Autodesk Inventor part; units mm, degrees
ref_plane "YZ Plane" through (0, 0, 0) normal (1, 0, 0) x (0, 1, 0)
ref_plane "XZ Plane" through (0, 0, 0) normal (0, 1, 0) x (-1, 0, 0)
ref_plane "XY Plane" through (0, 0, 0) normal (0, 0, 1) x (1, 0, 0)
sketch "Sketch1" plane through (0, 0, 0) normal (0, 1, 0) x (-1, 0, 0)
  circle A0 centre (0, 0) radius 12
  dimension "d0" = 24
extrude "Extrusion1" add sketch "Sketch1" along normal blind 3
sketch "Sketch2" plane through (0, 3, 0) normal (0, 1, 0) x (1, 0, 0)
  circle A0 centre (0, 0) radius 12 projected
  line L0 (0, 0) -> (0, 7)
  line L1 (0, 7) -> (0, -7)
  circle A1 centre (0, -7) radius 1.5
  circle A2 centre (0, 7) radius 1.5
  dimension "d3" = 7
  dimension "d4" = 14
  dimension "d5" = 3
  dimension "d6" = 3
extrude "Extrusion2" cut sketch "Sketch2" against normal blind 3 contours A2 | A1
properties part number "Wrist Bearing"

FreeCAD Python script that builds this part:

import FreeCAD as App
import Part
import Sketcher
from FreeCAD import Vector
Q = App.Units.Quantity

doc = App.newDocument("Part")
body = doc.addObject("PartDesign::Body", "Body")

# Sketch on XZ plane
sketch1 = body.newObject("Sketcher::SketchObject", "Sketch")
sketch1.AttachmentSupport = (doc.getObject("XZ_Plane"), [""])
sketch1.MapMode = "FlatFace"
sketch1.addGeometry(Part.Circle(Vector(0, 0, 0), Vector(0, 0, 1), 12), False)
sketch1.addConstraint([
    Sketcher.Constraint("Coincident", 0, 3, -1, 1),
    Sketcher.Constraint("Diameter", 0, Q("24 mm")),
])
pad1 = body.newObject("PartDesign::Pad", "Pad")
pad1.Profile = sketch1
pad1.Length = 3
pad1.Reversed = True

# Sketch on XZ plane
sketch2 = body.newObject("Sketcher::SketchObject", "Sketch001")
sketch2.AttachmentSupport = (doc.getObject("XZ_Plane"), [""])
sketch2.MapMode = "FlatFace"
sketch2.AttachmentOffset = App.Placement(Vector(0, 0, -3), App.Rotation())
sketch2.addGeometry([
    Part.Circle(Vector(0, -7, 0), Vector(0, 0, 1), 1.5),
    Part.Circle(Vector(0, 7, 0), Vector(0, 0, 1), 1.5),
], False)
sketch2.addConstraint([
    Sketcher.Constraint("Equal", 0, 1),
    Sketcher.Constraint("Symmetric", 0, 3, 1, 3, -1, 1),
    Sketcher.Constraint("PointOnObject", 0, 3, -2),
    Sketcher.Constraint("Diameter", 0, Q("3 mm")),
    Sketcher.Constraint("DistanceY", 0, 3, -1, 1, Q("7 mm")),
])
pocket1 = body.newObject("PartDesign::Pocket", "Pocket")
pocket1.Profile = sketch2
pocket1.Length = 3
pocket1.Reversed = True

doc.recompute()
